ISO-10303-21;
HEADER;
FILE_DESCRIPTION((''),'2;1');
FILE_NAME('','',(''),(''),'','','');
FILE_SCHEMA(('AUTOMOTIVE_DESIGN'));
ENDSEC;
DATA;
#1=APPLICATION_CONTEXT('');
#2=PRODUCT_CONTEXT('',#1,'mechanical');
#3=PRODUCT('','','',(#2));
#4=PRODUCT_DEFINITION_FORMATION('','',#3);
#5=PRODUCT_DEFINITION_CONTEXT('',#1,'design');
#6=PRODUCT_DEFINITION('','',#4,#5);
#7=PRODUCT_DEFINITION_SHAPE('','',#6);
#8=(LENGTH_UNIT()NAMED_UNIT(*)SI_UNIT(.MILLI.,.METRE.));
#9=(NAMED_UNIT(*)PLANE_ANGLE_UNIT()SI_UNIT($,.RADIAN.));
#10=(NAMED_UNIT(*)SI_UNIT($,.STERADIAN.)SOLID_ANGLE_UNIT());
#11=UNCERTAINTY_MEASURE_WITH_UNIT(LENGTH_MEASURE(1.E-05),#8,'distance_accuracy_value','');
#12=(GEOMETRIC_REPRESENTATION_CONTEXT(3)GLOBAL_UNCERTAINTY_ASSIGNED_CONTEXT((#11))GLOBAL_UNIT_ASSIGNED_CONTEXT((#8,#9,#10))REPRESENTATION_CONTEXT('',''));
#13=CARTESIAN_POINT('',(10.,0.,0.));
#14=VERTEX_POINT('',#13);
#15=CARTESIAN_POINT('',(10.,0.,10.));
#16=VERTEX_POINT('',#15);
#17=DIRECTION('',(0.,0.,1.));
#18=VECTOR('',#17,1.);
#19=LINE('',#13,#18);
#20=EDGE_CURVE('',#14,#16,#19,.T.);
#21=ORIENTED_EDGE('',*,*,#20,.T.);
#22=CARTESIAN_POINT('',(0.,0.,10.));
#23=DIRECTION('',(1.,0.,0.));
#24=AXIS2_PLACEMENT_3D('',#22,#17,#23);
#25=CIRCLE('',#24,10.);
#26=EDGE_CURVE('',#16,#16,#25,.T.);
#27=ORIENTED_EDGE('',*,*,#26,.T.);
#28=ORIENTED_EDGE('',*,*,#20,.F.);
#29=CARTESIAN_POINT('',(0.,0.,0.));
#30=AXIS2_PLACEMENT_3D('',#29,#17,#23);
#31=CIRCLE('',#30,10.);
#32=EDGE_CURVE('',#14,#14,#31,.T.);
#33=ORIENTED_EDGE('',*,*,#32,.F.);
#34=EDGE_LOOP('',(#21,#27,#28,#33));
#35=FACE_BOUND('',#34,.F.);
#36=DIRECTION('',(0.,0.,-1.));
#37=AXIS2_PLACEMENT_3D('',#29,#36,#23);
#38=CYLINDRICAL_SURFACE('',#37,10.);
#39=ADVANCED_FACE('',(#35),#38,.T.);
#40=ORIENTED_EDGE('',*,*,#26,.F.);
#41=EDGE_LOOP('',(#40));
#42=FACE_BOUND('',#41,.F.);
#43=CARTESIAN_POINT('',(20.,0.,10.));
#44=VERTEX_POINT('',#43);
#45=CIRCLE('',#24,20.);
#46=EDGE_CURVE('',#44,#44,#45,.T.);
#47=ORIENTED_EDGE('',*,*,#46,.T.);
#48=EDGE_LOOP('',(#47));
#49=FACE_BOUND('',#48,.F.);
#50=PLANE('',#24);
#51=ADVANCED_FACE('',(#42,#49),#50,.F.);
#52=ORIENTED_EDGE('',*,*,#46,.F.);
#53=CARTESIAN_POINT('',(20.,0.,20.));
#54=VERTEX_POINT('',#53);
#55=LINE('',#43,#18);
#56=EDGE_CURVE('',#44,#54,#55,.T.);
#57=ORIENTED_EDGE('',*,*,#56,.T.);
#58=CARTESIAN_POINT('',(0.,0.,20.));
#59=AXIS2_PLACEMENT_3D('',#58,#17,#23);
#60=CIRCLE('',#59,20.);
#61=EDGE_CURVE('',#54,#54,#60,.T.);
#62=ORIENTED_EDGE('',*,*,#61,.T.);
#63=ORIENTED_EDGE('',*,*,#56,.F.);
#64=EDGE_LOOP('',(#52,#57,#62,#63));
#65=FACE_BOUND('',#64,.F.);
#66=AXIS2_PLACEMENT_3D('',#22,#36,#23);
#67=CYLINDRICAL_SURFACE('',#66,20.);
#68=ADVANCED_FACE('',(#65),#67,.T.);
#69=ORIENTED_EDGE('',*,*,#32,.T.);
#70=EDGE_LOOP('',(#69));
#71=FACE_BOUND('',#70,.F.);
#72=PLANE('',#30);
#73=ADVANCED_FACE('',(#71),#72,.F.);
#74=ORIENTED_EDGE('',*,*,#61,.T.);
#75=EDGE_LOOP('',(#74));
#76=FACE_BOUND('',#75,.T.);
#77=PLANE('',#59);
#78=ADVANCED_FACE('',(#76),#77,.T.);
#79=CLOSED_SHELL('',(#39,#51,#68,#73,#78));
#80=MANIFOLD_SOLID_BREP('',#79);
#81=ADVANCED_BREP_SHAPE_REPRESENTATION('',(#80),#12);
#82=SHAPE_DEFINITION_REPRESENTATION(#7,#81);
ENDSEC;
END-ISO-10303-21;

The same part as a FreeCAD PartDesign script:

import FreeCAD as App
import Part
import Sketcher
from FreeCAD import Vector

doc = App.newDocument("Part")
params = doc.addObject("Spreadsheet::Sheet", "Params")
for row, (alias, value) in enumerate([
    ("sketch1_diameter", "20 mm"),
    ("pad1_length", "10 mm"),
    ("sketch2_diameter", "40 mm"),
    ("pad2_length", "10 mm"),
], start=1):
    params.set(f"A{row}", alias)
    params.set(f"B{row}", "=" + value)
    params.setAlias(f"B{row}", alias)

body = doc.addObject("PartDesign::Body", "Body")

# Sketch on XY plane
sketch1 = doc.addObject("Sketcher::SketchObject", "Sketch")
body.addObject(sketch1)
sketch1.AttachmentSupport = (doc.XY_Plane, [""])
sketch1.MapMode = "FlatFace"
sketch1.addGeometry(Part.Circle(Vector(0, 0, 0), Vector(0, 0, 1), 10), False)
sketch1.addConstraint(Sketcher.Constraint("Coincident", 0, 3, -1, 1))
sketch1.addConstraint(Sketcher.Constraint("Diameter", 0, 20.0))
sketch1.setExpression("Constraints[1]", "Params.sketch1_diameter")
pad1 = doc.addObject("PartDesign::Pad", "Pad")
body.addObject(pad1)
pad1.Profile = sketch1
pad1.setExpression("Length", "Params.pad1_length")

# Sketch on XY plane
sketch2 = doc.addObject("Sketcher::SketchObject", "Sketch001")
body.addObject(sketch2)
sketch2.AttachmentSupport = (doc.XY_Plane, [""])
sketch2.MapMode = "FlatFace"
sketch2.AttachmentOffset = App.Placement(Vector(0, 0, 10), App.Rotation())
sketch2.addGeometry(Part.Circle(Vector(0, 0, 0), Vector(0, 0, 1), 20), False)
sketch2.addConstraint(Sketcher.Constraint("Coincident", 0, 3, -1, 1))
sketch2.addConstraint(Sketcher.Constraint("Diameter", 0, 40.0))
sketch2.setExpression("Constraints[1]", "Params.sketch2_diameter")
pad2 = doc.addObject("PartDesign::Pad", "Pad001")
body.addObject(pad2)
pad2.Profile = sketch2
pad2.setExpression("Length", "Params.pad2_length")

doc.recompute()
